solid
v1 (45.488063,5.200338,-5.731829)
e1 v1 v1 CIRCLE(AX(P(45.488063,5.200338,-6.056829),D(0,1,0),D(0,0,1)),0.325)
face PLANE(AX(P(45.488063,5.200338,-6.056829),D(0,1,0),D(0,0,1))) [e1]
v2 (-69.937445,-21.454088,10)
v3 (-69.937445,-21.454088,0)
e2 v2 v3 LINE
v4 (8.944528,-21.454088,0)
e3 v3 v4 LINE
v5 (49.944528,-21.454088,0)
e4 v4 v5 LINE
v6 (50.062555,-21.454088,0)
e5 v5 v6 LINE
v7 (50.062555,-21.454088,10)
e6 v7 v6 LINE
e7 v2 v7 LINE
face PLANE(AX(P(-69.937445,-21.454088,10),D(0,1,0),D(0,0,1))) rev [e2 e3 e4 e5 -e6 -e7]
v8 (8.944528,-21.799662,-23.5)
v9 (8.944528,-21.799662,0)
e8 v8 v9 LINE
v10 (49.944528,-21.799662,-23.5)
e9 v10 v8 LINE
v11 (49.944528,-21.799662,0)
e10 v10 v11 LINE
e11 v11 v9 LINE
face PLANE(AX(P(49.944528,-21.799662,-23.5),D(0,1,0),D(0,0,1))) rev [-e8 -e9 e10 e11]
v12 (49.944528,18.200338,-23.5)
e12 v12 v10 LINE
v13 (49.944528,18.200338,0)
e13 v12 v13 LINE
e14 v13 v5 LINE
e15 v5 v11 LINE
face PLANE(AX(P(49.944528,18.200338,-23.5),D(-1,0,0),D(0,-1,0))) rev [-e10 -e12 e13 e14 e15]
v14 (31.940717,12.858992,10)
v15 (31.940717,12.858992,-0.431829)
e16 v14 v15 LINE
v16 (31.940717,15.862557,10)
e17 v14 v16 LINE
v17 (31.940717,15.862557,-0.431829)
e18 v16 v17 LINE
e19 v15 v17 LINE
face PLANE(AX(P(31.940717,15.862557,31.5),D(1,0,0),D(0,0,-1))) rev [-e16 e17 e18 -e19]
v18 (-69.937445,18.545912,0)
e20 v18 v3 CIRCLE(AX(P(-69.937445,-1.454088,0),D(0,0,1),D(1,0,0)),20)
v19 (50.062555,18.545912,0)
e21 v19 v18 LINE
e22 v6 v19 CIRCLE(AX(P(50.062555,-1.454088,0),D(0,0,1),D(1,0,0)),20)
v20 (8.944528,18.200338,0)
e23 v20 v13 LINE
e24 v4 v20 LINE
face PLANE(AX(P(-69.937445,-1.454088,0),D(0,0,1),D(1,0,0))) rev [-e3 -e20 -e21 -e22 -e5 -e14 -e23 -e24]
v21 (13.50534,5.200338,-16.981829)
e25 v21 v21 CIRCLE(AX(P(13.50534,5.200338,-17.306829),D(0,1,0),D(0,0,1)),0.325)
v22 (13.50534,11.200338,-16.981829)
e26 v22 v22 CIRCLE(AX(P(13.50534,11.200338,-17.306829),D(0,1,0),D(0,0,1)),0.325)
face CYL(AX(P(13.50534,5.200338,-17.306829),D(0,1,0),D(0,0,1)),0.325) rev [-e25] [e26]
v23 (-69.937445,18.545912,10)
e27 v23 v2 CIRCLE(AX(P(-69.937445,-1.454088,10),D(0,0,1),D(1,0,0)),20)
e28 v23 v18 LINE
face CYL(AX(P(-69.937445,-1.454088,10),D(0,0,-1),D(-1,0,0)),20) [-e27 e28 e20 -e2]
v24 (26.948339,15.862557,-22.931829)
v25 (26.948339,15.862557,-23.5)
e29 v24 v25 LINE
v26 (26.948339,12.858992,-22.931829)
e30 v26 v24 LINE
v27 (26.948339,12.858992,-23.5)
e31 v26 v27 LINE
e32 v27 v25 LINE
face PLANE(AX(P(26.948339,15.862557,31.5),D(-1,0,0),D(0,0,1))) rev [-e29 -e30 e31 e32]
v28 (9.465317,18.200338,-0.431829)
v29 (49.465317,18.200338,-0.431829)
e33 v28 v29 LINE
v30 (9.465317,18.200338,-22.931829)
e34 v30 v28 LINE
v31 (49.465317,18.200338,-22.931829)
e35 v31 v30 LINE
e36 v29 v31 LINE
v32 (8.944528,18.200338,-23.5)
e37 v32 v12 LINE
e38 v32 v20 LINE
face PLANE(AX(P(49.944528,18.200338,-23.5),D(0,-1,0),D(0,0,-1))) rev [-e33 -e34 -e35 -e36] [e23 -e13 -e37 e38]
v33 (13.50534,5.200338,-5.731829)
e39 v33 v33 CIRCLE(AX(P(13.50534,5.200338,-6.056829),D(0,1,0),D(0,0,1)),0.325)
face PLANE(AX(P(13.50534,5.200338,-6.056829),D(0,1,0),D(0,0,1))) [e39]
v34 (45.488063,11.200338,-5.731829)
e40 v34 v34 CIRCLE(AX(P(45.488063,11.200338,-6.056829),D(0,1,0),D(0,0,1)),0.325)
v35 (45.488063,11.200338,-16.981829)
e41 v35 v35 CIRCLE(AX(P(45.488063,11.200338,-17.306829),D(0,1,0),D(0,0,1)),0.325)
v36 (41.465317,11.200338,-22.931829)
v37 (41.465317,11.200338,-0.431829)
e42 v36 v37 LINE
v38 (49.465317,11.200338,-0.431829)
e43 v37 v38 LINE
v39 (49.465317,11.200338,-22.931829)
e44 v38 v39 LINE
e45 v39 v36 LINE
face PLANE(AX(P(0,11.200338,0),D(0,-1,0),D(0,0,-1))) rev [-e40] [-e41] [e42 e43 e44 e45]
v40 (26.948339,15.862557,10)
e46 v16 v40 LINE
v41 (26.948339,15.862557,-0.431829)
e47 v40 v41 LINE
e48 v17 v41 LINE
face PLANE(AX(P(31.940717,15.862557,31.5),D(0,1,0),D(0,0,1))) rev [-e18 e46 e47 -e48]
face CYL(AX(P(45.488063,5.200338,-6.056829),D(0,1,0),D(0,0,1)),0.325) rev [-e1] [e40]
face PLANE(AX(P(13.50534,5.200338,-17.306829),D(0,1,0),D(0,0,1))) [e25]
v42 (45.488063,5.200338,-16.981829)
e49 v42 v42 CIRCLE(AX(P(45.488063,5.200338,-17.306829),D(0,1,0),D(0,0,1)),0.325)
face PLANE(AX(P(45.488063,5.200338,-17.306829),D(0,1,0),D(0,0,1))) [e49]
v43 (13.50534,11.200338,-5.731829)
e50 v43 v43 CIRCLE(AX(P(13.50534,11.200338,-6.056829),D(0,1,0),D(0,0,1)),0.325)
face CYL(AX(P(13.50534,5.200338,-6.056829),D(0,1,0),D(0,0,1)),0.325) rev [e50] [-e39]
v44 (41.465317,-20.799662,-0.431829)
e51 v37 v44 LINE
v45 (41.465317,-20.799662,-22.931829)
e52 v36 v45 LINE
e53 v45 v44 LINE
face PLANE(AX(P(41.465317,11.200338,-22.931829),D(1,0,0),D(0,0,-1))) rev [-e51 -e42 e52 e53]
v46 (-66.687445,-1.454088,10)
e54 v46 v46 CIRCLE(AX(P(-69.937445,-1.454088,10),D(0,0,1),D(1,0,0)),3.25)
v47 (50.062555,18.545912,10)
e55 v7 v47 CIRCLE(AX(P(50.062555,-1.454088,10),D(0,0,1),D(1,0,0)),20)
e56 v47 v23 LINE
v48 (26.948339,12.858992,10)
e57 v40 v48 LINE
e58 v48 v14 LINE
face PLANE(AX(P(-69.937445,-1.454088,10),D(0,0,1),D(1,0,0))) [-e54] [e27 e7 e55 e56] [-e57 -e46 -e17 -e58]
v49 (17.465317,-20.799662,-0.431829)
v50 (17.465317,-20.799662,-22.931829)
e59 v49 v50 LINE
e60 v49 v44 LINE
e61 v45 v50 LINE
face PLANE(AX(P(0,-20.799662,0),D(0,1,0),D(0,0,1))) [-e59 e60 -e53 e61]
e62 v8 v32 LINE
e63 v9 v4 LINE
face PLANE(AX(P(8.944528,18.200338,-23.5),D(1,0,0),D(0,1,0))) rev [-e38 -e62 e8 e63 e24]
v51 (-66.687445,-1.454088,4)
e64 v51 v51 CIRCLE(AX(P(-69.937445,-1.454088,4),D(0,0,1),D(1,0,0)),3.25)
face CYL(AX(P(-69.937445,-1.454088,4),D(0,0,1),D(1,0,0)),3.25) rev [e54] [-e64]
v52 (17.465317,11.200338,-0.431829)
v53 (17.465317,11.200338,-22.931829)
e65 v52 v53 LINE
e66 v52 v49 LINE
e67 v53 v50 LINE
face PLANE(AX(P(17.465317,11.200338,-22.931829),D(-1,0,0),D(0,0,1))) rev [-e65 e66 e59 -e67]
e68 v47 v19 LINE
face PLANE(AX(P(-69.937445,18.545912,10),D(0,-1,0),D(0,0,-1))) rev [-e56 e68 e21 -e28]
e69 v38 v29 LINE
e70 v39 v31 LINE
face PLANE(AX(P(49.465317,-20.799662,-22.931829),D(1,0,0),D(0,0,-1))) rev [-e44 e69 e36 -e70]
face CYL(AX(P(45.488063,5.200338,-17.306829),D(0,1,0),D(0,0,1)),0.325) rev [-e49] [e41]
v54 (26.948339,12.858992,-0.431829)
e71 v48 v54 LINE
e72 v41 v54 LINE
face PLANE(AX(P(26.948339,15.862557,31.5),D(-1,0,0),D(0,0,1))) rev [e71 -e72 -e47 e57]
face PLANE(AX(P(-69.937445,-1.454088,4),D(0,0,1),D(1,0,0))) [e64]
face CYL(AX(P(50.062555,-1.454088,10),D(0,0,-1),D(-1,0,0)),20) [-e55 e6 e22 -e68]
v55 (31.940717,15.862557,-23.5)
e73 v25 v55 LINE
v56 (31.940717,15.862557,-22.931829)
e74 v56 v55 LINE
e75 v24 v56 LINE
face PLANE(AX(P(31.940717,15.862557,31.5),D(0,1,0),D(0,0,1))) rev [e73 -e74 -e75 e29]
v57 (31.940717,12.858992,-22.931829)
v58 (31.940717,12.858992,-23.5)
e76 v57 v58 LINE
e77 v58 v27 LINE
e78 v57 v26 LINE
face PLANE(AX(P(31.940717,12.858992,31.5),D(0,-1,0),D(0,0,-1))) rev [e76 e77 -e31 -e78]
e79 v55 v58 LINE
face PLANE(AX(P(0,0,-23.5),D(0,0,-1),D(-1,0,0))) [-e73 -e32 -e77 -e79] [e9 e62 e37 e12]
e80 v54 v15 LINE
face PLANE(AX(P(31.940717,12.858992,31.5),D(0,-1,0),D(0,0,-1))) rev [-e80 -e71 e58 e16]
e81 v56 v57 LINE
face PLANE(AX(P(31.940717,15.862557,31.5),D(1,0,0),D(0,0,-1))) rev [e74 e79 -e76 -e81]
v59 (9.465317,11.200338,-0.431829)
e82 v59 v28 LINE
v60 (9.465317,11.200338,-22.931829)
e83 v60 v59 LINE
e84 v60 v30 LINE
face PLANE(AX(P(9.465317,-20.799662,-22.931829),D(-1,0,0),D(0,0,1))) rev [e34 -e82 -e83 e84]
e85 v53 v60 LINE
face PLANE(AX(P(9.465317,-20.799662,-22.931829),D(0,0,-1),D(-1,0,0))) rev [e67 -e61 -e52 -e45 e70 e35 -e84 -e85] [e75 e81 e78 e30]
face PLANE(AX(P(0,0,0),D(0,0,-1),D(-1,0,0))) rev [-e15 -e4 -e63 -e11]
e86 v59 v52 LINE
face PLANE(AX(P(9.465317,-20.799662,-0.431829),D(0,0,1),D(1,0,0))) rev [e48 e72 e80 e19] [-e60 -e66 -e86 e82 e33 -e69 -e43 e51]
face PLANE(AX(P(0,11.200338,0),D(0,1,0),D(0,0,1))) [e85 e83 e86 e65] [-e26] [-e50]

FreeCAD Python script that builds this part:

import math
import FreeCAD as App
import Part
import Sketcher
from FreeCAD import Vector
Q = App.Units.Quantity


def add_polygon(sketch, points):
    """Adds a closed chain of lines whose ends are joined by coincident constraints."""
    first, n = sketch.GeometryCount, len(points)
    for a, b in zip(points, points[1:] + points[:1]):
        sketch.addGeometry(Part.LineSegment(App.Vector(*a, 0), App.Vector(*b, 0)), False)
    for i in range(n):
        sketch.addConstraint(Sketcher.Constraint("Coincident", first + i, 2, first + (i + 1) % n, 1))

doc = App.newDocument("Part")
body = doc.addObject("PartDesign::Body", "Body")

# Sketch on XY plane
sketch1 = doc.addObject("Sketcher::SketchObject", "Sketch")
body.addObject(sketch1)
sketch1.AttachmentSupport = (doc.XY_Plane, [""])
sketch1.MapMode = "FlatFace"
sketch1.addGeometry([
    Part.LineSegment(Vector(50, 19, 0), Vector(-70, 19, 0)),
    Part.ArcOfCircle(Part.Circle(Vector(-70, -1, 0), Vector(0, 0, 1), 20), math.radians(90), math.radians(270)),
    Part.LineSegment(Vector(-70, -21, 0), Vector(50, -21, 0)),
    Part.ArcOfCircle(Part.Circle(Vector(50, -1, 0), Vector(0, 0, 1), 20), math.radians(-90), math.radians(90)),
], False)
sketch1.addConstraint([
    Sketcher.Constraint("Tangent", 0, 2, 1, 1),
    Sketcher.Constraint("Tangent", 1, 2, 2, 1),
    Sketcher.Constraint("Tangent", 2, 2, 3, 1),
    Sketcher.Constraint("Tangent", 3, 2, 0, 1),
    Sketcher.Constraint("Horizontal", 0),
    Sketcher.Constraint("Horizontal", 2),
    Sketcher.Constraint("Radius", 1, Q("20 mm")),
    Sketcher.Constraint("DistanceX", 0, 2, 0, 1, Q("120 mm")),
    Sketcher.Constraint("DistanceY", 1, 3, -1, 1, Q("1.454088 mm")),
    Sketcher.Constraint("DistanceX", 1, 3, -1, 1, Q("69.937445 mm")),
])
pad1 = doc.addObject("PartDesign::Pad", "Pad")
body.addObject(pad1)
pad1.Profile = sketch1
pad1.Length = 10

# Sketch on XY plane
sketch2 = doc.addObject("Sketcher::SketchObject", "Sketch001")
body.addObject(sketch2)
sketch2.AttachmentSupport = (doc.XY_Plane, [""])
sketch2.MapMode = "FlatFace"
sketch2.AttachmentOffset = App.Placement(Vector(0, 0, 10), App.Rotation())
sketch2.addGeometry(Part.Circle(Vector(-69.9, -1.5, 0), Vector(0, 0, 1), 3.2), False)
sketch2.addConstraint([
    Sketcher.Constraint("Diameter", 0, Q("6.5 mm")),
    Sketcher.Constraint("DistanceY", 0, 3, -1, 1, Q("1.454088 mm")),
    Sketcher.Constraint("DistanceX", 0, 3, -1, 1, Q("69.937445 mm")),
])
pocket1 = doc.addObject("PartDesign::Pocket", "Pocket")
body.addObject(pocket1)
pocket1.Profile = sketch2
pocket1.Length = 6

# Sketch on XY plane
sketch3 = doc.addObject("Sketcher::SketchObject", "Sketch002")
body.addObject(sketch3)
sketch3.AttachmentSupport = (doc.XY_Plane, [""])
sketch3.MapMode = "FlatFace"
add_polygon(sketch3, [(50, 18), (50, -22), (9, -22), (9, 18)])  # lines 0-3
sketch3.addConstraint([
    Sketcher.Constraint("Vertical", 0),
    Sketcher.Constraint("Horizontal", 1),
    Sketcher.Constraint("Vertical", 2),
    Sketcher.Constraint("Horizontal", 3),
    Sketcher.Constraint("DistanceX", 1, 2, 1, 1, Q("41 mm")),
    Sketcher.Constraint("DistanceY", 0, 2, 0, 1, Q("40 mm")),
    Sketcher.Constraint("DistanceX", -1, 1, 0, 2, Q("49.944528 mm")),
    Sketcher.Constraint("DistanceY", 0, 2, -1, 1, Q("21.799662 mm")),
])
pad2 = doc.addObject("PartDesign::Pad", "Pad001")
body.addObject(pad2)
pad2.Profile = sketch3
pad2.Length = 23.5
pad2.Reversed = True

# Sketch on XZ plane
sketch4 = doc.addObject("Sketcher::SketchObject", "Sketch003")
body.addObject(sketch4)
sketch4.AttachmentSupport = (doc.XZ_Plane, [""])
sketch4.MapMode = "FlatFace"
sketch4.AttachmentOffset = App.Placement(Vector(0, 0, -18.200338), App.Rotation())
add_polygon(sketch4, [(9, -23), (9, 0), (49, 0), (49, -23)])  # lines 0-3
sketch4.addConstraint([
    Sketcher.Constraint("Vertical", 0),
    Sketcher.Constraint("Horizontal", 1),
    Sketcher.Constraint("Vertical", 2),
    Sketcher.Constraint("Horizontal", 3),
    Sketcher.Constraint("DistanceX", 1, 1, 1, 2, Q("40 mm")),
    Sketcher.Constraint("DistanceY", 0, 1, 0, 2, Q("22.5 mm")),
    Sketcher.Constraint("DistanceY", 0, 2, -1, 1, Q("0.431829 mm")),
    Sketcher.Constraint("DistanceX", -1, 1, 0, 2, Q("9.465317 mm")),
])
pocket2 = doc.addObject("PartDesign::Pocket", "Pocket001")
body.addObject(pocket2)
pocket2.Profile = sketch4
pocket2.Length = 39
pocket2.Reversed = True

# Sketch on XZ plane
sketch5 = doc.addObject("Sketcher::SketchObject", "Sketch004")
body.addObject(sketch5)
sketch5.AttachmentSupport = (doc.XZ_Plane, [""])
sketch5.MapMode = "FlatFace"
sketch5.AttachmentOffset = App.Placement(Vector(0, 0, 20.799662), App.Rotation())
add_polygon(sketch5, [(9, -23), (9, 0), (17, 0), (17, -23)])  # lines 0-3
add_polygon(sketch5, [(41, -23), (41, 0), (49, 0), (49, -23)])  # lines 4-7
sketch5.addConstraint([
    Sketcher.Constraint("Vertical", 0),
    Sketcher.Constraint("Horizontal", 1),
    Sketcher.Constraint("Vertical", 2),
    Sketcher.Constraint("Horizontal", 3),
    Sketcher.Constraint("Vertical", 4),
    Sketcher.Constraint("Horizontal", 5),
    Sketcher.Constraint("Vertical", 6),
    Sketcher.Constraint("Horizontal", 7),
    Sketcher.Constraint("Horizontal", 1, 2, 4, 2),
    Sketcher.Constraint("Horizontal", 3, 2, 6, 2),
    Sketcher.Constraint("Equal", 3, 5),
    Sketcher.Constraint("DistanceX", 1, 1, 1, 2, Q("8 mm")),
    Sketcher.Constraint("DistanceY", 0, 1, 0, 2, Q("22.5 mm")),
    Sketcher.Constraint("DistanceX", 1, 2, 4, 2, Q("24 mm")),
    Sketcher.Constraint("DistanceY", 0, 2, -1, 1, Q("0.431829 mm")),
    Sketcher.Constraint("DistanceX", -1, 1, 0, 2, Q("9.465317 mm")),
])
pad3 = doc.addObject("PartDesign::Pad", "Pad002")
body.addObject(pad3)
pad3.Profile = sketch5
pad3.Length = 32
pad3.Reversed = True

# Sketch on XZ plane
sketch6 = doc.addObject("Sketcher::SketchObject", "Sketch005")
body.addObject(sketch6)
sketch6.AttachmentSupport = (doc.XZ_Plane, [""])
sketch6.MapMode = "FlatFace"
sketch6.AttachmentOffset = App.Placement(Vector(0, 0, -11.200338), App.Rotation())
sketch6.addGeometry([
    Part.Circle(Vector(45.49, -17.31, 0), Vector(0, 0, 1), 0.33),
    Part.Circle(Vector(45.49, -6.06, 0), Vector(0, 0, 1), 0.33),
    Part.Circle(Vector(13.51, -17.31, 0), Vector(0, 0, 1), 0.33),
    Part.Circle(Vector(13.51, -6.06, 0), Vector(0, 0, 1), 0.33),
], False)
sketch6.addConstraint([
    Sketcher.Constraint("Equal", 0, 1),
    Sketcher.Constraint("Equal", 1, 2),
    Sketcher.Constraint("Equal", 2, 3),
    Sketcher.Constraint("Horizontal", 0, 3, 2, 3),
    Sketcher.Constraint("Horizontal", 1, 3, 3, 3),
    Sketcher.Constraint("Vertical", 0, 3, 1, 3),
    Sketcher.Constraint("Vertical", 2, 3, 3, 3),
    Sketcher.Constraint("Diameter", 0, Q("0.65 mm")),
    Sketcher.Constraint("DistanceY", 0, 3, 1, 3, Q("11.25 mm")),
    Sketcher.Constraint("DistanceY", 0, 3, -1, 1, Q("17.306829 mm")),
    Sketcher.Constraint("DistanceX", -1, 1, 2, 3, Q("13.50534 mm")),
    Sketcher.Constraint("DistanceX", -1, 1, 0, 3, Q("45.488063 mm")),
])
pocket3 = doc.addObject("PartDesign::Pocket", "Pocket002")
body.addObject(pocket3)
pocket3.Profile = sketch6
pocket3.Length = 6
pocket3.Reversed = True

# Sketch on XY plane
sketch7 = doc.addObject("Sketcher::SketchObject", "Sketch006")
body.addObject(sketch7)
sketch7.AttachmentSupport = (doc.XY_Plane, [""])
sketch7.MapMode = "FlatFace"
sketch7.AttachmentOffset = App.Placement(Vector(0, 0, -23.5), App.Rotation())
add_polygon(sketch7, [(31.9, 15.9), (31.9, 12.9), (26.9, 12.9), (26.9, 15.9)])  # lines 0-3
sketch7.addConstraint([
    Sketcher.Constraint("Vertical", 0),
    Sketcher.Constraint("Horizontal", 1),
    Sketcher.Constraint("Vertical", 2),
    Sketcher.Constraint("Horizontal", 3),
    Sketcher.Constraint("DistanceX", 1, 2, 1, 1, Q("4.992378 mm")),
    Sketcher.Constraint("DistanceY", 0, 2, 0, 1, Q("3.003565 mm")),
    Sketcher.Constraint("DistanceX", -1, 1, 1, 2, Q("26.948339 mm")),
    Sketcher.Constraint("DistanceY", -1, 1, 0, 2, Q("12.858992 mm")),
])
pocket4 = doc.addObject("PartDesign::Pocket", "Pocket003")
body.addObject(pocket4)
pocket4.Profile = sketch7
pocket4.Length = 55
pocket4.Reversed = True

doc.recompute()
